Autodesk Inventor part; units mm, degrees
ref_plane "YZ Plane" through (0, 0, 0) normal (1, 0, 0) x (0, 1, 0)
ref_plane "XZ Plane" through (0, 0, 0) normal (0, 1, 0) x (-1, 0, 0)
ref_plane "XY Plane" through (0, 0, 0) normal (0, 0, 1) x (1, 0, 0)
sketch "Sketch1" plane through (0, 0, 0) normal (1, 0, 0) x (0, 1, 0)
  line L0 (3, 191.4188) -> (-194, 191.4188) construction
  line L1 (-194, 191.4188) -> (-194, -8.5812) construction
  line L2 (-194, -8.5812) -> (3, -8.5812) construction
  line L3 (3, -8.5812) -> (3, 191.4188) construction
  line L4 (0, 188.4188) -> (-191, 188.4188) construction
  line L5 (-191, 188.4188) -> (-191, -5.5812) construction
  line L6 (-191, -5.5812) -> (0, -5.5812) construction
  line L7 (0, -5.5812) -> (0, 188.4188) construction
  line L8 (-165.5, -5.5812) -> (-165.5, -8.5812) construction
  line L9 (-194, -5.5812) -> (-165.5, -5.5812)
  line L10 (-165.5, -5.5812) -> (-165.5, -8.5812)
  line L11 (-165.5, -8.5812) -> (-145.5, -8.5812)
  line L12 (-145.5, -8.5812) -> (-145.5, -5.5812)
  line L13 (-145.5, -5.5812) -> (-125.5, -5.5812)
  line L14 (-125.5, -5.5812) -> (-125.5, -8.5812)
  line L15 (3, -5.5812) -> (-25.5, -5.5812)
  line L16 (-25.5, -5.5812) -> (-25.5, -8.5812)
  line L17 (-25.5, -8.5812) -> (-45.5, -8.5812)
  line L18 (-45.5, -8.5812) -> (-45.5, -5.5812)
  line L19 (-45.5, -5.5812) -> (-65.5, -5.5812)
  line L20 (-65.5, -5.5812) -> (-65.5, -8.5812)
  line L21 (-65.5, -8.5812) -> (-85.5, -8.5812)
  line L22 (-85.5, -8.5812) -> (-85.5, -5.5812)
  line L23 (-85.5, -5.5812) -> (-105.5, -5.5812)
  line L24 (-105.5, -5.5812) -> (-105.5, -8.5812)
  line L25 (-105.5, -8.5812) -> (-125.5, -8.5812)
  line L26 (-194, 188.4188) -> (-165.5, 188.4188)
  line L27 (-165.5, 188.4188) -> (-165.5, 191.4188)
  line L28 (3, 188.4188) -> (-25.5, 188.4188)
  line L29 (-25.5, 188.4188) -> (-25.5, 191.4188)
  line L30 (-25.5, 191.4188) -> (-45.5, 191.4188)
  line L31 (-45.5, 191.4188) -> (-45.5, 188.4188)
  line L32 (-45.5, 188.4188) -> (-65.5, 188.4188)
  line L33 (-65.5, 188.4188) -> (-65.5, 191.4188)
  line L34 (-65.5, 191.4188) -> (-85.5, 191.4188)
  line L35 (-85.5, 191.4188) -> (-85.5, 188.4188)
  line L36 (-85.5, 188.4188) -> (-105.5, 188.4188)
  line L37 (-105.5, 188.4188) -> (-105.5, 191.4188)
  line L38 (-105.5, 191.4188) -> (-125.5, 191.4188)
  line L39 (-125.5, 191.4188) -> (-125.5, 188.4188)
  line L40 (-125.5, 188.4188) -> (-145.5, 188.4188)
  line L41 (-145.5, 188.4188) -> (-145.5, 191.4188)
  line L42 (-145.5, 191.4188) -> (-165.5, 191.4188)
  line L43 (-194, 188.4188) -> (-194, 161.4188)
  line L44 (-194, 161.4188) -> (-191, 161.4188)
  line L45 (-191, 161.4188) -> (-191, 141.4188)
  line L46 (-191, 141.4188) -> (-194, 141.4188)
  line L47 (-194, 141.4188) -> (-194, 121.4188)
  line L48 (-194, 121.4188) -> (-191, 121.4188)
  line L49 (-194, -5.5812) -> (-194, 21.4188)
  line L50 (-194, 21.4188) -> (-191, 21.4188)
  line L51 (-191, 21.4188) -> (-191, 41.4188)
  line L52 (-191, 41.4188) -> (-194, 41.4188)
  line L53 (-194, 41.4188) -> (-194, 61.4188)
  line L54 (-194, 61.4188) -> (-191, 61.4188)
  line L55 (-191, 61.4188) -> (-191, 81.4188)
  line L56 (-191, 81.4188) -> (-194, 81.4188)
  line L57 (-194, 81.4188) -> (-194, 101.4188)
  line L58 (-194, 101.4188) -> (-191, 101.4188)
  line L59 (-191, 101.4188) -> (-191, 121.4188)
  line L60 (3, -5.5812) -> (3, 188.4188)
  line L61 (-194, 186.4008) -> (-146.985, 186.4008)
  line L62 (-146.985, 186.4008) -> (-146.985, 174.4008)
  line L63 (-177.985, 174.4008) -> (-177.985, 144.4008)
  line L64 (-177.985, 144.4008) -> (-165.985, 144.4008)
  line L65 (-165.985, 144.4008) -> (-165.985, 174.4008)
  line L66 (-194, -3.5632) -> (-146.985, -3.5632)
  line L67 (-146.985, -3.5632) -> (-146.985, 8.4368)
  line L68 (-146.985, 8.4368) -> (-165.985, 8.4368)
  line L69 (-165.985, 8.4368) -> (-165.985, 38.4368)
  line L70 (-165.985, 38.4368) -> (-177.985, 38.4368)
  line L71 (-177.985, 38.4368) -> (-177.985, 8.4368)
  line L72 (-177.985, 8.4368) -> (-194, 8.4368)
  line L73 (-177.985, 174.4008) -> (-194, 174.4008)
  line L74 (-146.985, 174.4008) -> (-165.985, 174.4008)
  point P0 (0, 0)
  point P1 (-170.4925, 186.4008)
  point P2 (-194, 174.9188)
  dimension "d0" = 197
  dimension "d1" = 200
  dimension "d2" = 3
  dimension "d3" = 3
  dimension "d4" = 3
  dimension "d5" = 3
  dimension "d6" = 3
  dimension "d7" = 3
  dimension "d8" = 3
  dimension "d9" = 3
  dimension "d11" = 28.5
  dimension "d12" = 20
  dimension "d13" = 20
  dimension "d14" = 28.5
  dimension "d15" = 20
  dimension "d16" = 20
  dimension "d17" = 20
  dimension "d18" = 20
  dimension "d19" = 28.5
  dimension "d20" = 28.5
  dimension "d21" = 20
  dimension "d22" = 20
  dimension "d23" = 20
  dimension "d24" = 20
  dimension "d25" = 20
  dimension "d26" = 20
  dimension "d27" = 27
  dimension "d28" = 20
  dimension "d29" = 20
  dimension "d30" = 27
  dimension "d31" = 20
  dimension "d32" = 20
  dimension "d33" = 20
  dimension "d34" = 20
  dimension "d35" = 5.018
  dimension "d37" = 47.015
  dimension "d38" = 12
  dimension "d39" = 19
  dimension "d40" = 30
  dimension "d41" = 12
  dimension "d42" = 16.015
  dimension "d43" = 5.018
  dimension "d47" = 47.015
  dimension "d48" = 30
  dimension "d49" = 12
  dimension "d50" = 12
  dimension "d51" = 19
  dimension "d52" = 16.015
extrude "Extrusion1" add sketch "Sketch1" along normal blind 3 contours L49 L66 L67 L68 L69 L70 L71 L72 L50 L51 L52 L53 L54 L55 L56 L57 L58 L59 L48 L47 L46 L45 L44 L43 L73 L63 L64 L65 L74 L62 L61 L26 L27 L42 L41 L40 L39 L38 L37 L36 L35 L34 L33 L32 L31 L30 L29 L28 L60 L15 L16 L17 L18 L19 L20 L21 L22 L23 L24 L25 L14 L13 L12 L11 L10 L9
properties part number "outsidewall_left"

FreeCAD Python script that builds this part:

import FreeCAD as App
import Part
import Sketcher
from FreeCAD import Vector
Q = App.Units.Quantity

doc = App.newDocument("Part")
body = doc.addObject("PartDesign::Body", "Body")

sketch1 = doc.addObject("Sketcher::SketchObject", "Sketch")
body.addObject(sketch1)
sketch1.AttachmentSupport = (doc.YZ_Plane, [""])
sketch1.MapMode = "FlatFace"
sketch1.addGeometry([
    Part.LineSegment(Vector(-194, -3.6, 0), Vector(-194, -5.6, 0)),
    Part.LineSegment(Vector(-194, -5.6, 0), Vector(-165.5, -5.6, 0)),
    Part.LineSegment(Vector(-165.5, -5.6, 0), Vector(-165.5, -8.6, 0)),
    Part.LineSegment(Vector(-165.5, -8.6, 0), Vector(-145.5, -8.6, 0)),
    Part.LineSegment(Vector(-145.5, -8.6, 0), Vector(-145.5, -5.6, 0)),
    Part.LineSegment(Vector(-145.5, -5.6, 0), Vector(-125.5, -5.6, 0)),
    Part.LineSegment(Vector(-125.5, -5.6, 0), Vector(-125.5, -8.6, 0)),
    Part.LineSegment(Vector(-125.5, -8.6, 0), Vector(-105.5, -8.6, 0)),
    Part.LineSegment(Vector(-105.5, -8.6, 0), Vector(-105.5, -5.6, 0)),
    Part.LineSegment(Vector(-105.5, -5.6, 0), Vector(-85.5, -5.6, 0)),
    Part.LineSegment(Vector(-85.5, -5.6, 0), Vector(-85.5, -8.6, 0)),
    Part.LineSegment(Vector(-85.5, -8.6, 0), Vector(-65.5, -8.6, 0)),
    Part.LineSegment(Vector(-65.5, -8.6, 0), Vector(-65.5, -5.6, 0)),
    Part.LineSegment(Vector(-65.5, -5.6, 0), Vector(-45.5, -5.6, 0)),
    Part.LineSegment(Vector(-45.5, -5.6, 0), Vector(-45.5, -8.6, 0)),
    Part.LineSegment(Vector(-45.5, -8.6, 0), Vector(-25.5, -8.6, 0)),
    Part.LineSegment(Vector(-25.5, -8.6, 0), Vector(-25.5, -5.6, 0)),
    Part.LineSegment(Vector(-25.5, -5.6, 0), Vector(3, -5.6, 0)),
    Part.LineSegment(Vector(3, -5.6, 0), Vector(3, 188.4, 0)),
    Part.LineSegment(Vector(3, 188.4, 0), Vector(-25.5, 188.4, 0)),
    Part.LineSegment(Vector(-25.5, 188.4, 0), Vector(-25.5, 191.4, 0)),
    Part.LineSegment(Vector(-25.5, 191.4, 0), Vector(-45.5, 191.4, 0)),
    Part.LineSegment(Vector(-45.5, 191.4, 0), Vector(-45.5, 188.4, 0)),
    Part.LineSegment(Vector(-45.5, 188.4, 0), Vector(-65.5, 188.4, 0)),
    Part.LineSegment(Vector(-65.5, 188.4, 0), Vector(-65.5, 191.4, 0)),
    Part.LineSegment(Vector(-65.5, 191.4, 0), Vector(-85.5, 191.4, 0)),
    Part.LineSegment(Vector(-85.5, 191.4, 0), Vector(-85.5, 188.4, 0)),
    Part.LineSegment(Vector(-85.5, 188.4, 0), Vector(-105.5, 188.4, 0)),
    Part.LineSegment(Vector(-105.5, 188.4, 0), Vector(-105.5, 191.4, 0)),
    Part.LineSegment(Vector(-105.5, 191.4, 0), Vector(-125.5, 191.4, 0)),
    Part.LineSegment(Vector(-125.5, 191.4, 0), Vector(-125.5, 188.4, 0)),
    Part.LineSegment(Vector(-125.5, 188.4, 0), Vector(-145.5, 188.4, 0)),
    Part.LineSegment(Vector(-145.5, 188.4, 0), Vector(-145.5, 191.4, 0)),
    Part.LineSegment(Vector(-145.5, 191.4, 0), Vector(-165.5, 191.4, 0)),
    Part.LineSegment(Vector(-165.5, 191.4, 0), Vector(-165.5, 188.4, 0)),
    Part.LineSegment(Vector(-165.5, 188.4, 0), Vector(-194, 188.4, 0)),
    Part.LineSegment(Vector(-194, 188.4, 0), Vector(-194, 186.4, 0)),
    Part.LineSegment(Vector(-194, 186.4, 0), Vector(-147, 186.4, 0)),
    Part.LineSegment(Vector(-147, 186.4, 0), Vector(-147, 174.4, 0)),
    Part.LineSegment(Vector(-147, 174.4, 0), Vector(-166, 174.4, 0)),
    Part.LineSegment(Vector(-166, 174.4, 0), Vector(-166, 144.4, 0)),
    Part.LineSegment(Vector(-166, 144.4, 0), Vector(-178, 144.4, 0)),
    Part.LineSegment(Vector(-178, 144.4, 0), Vector(-178, 174.4, 0)),
    Part.LineSegment(Vector(-178, 174.4, 0), Vector(-194, 174.4, 0)),
    Part.LineSegment(Vector(-194, 174.4, 0), Vector(-194, 161.4, 0)),
    Part.LineSegment(Vector(-194, 161.4, 0), Vector(-191, 161.4, 0)),
    Part.LineSegment(Vector(-191, 161.4, 0), Vector(-191, 141.4, 0)),
    Part.LineSegment(Vector(-191, 141.4, 0), Vector(-194, 141.4, 0)),
    Part.LineSegment(Vector(-194, 141.4, 0), Vector(-194, 121.4, 0)),
    Part.LineSegment(Vector(-194, 121.4, 0), Vector(-191, 121.4, 0)),
    Part.LineSegment(Vector(-191, 121.4, 0), Vector(-191, 101.4, 0)),
    Part.LineSegment(Vector(-191, 101.4, 0), Vector(-194, 101.4, 0)),
    Part.LineSegment(Vector(-194, 101.4, 0), Vector(-194, 81.4, 0)),
    Part.LineSegment(Vector(-194, 81.4, 0), Vector(-191, 81.4, 0)),
    Part.LineSegment(Vector(-191, 81.4, 0), Vector(-191, 61.4, 0)),
    Part.LineSegment(Vector(-191, 61.4, 0), Vector(-194, 61.4, 0)),
    Part.LineSegment(Vector(-194, 61.4, 0), Vector(-194, 41.4, 0)),
    Part.LineSegment(Vector(-194, 41.4, 0), Vector(-191, 41.4, 0)),
    Part.LineSegment(Vector(-191, 41.4, 0), Vector(-191, 21.4, 0)),
    Part.LineSegment(Vector(-191, 21.4, 0), Vector(-194, 21.4, 0)),
    Part.LineSegment(Vector(-194, 21.4, 0), Vector(-194, 8.4, 0)),
    Part.LineSegment(Vector(-194, 8.4, 0), Vector(-178, 8.4, 0)),
    Part.LineSegment(Vector(-178, 8.4, 0), Vector(-178, 38.4, 0)),
    Part.LineSegment(Vector(-178, 38.4, 0), Vector(-166, 38.4, 0)),
    Part.LineSegment(Vector(-166, 38.4, 0), Vector(-166, 8.4, 0)),
    Part.LineSegment(Vector(-166, 8.4, 0), Vector(-147, 8.4, 0)),
    Part.LineSegment(Vector(-147, 8.4, 0), Vector(-147, -3.6, 0)),
    Part.LineSegment(Vector(-147, -3.6, 0), Vector(-194, -3.6, 0)),
], False)
sketch1.addConstraint([
    Sketcher.Constraint("Coincident", 0, 2, 1, 1),
    Sketcher.Constraint("Coincident", 1, 2, 2, 1),
    Sketcher.Constraint("Coincident", 2, 2, 3, 1),
    Sketcher.Constraint("Coincident", 3, 2, 4, 1),
    Sketcher.Constraint("Coincident", 4, 2, 5, 1),
    Sketcher.Constraint("Coincident", 5, 2, 6, 1),
    Sketcher.Constraint("Coincident", 6, 2, 7, 1),
    Sketcher.Constraint("Coincident", 7, 2, 8, 1),
    Sketcher.Constraint("Coincident", 8, 2, 9, 1),
    Sketcher.Constraint("Coincident", 9, 2, 10, 1),
    Sketcher.Constraint("Coincident", 10, 2, 11, 1),
    Sketcher.Constraint("Coincident", 11, 2, 12, 1),
    Sketcher.Constraint("Coincident", 12, 2, 13, 1),
    Sketcher.Constraint("Coincident", 13, 2, 14, 1),
    Sketcher.Constraint("Coincident", 14, 2, 15, 1),
    Sketcher.Constraint("Coincident", 15, 2, 16, 1),
    Sketcher.Constraint("Coincident", 16, 2, 17, 1),
    Sketcher.Constraint("Coincident", 17, 2, 18, 1),
    Sketcher.Constraint("Coincident", 18, 2, 19, 1),
    Sketcher.Constraint("Coincident", 19, 2, 20, 1),
    Sketcher.Constraint("Coincident", 20, 2, 21, 1),
    Sketcher.Constraint("Coincident", 21, 2, 22, 1),
    Sketcher.Constraint("Coincident", 22, 2, 23, 1),
    Sketcher.Constraint("Coincident", 23, 2, 24, 1),
    Sketcher.Constraint("Coincident", 24, 2, 25, 1),
    Sketcher.Constraint("Coincident", 25, 2, 26, 1),
    Sketcher.Constraint("Coincident", 26, 2, 27, 1),
    Sketcher.Constraint("Coincident", 27, 2, 28, 1),
    Sketcher.Constraint("Coincident", 28, 2, 29, 1),
    Sketcher.Constraint("Coincident", 29, 2, 30, 1),
    Sketcher.Constraint("Coincident", 30, 2, 31, 1),
    Sketcher.Constraint("Coincident", 31, 2, 32, 1),
    Sketcher.Constraint("Coincident", 32, 2, 33, 1),
    Sketcher.Constraint("Coincident", 33, 2, 34, 1),
    Sketcher.Constraint("Coincident", 34, 2, 35, 1),
    Sketcher.Constraint("Coincident", 35, 2, 36, 1),
    Sketcher.Constraint("Coincident", 36, 2, 37, 1),
    Sketcher.Constraint("Coincident", 37, 2, 38, 1),
    Sketcher.Constraint("Coincident", 38, 2, 39, 1),
    Sketcher.Constraint("Coincident", 39, 2, 40, 1),
    Sketcher.Constraint("Coincident", 40, 2, 41, 1),
    Sketcher.Constraint("Coincident", 41, 2, 42, 1),
    Sketcher.Constraint("Coincident", 42, 2, 43, 1),
    Sketcher.Constraint("Coincident", 43, 2, 44, 1),
    Sketcher.Constraint("Coincident", 44, 2, 45, 1),
    Sketcher.Constraint("Coincident", 45, 2, 46, 1),
    Sketcher.Constraint("Coincident", 46, 2, 47, 1),
    Sketcher.Constraint("Coincident", 47, 2, 48, 1),
    Sketcher.Constraint("Coincident", 48, 2, 49, 1),
    Sketcher.Constraint("Coincident", 49, 2, 50, 1),
    Sketcher.Constraint("Coincident", 50, 2, 51, 1),
    Sketcher.Constraint("Coincident", 51, 2, 52, 1),
    Sketcher.Constraint("Coincident", 52, 2, 53, 1),
    Sketcher.Constraint("Coincident", 53, 2, 54, 1),
    Sketcher.Constraint("Coincident", 54, 2, 55, 1),
    Sketcher.Constraint("Coincident", 55, 2, 56, 1),
    Sketcher.Constraint("Coincident", 56, 2, 57, 1),
    Sketcher.Constraint("Coincident", 57, 2, 58, 1),
    Sketcher.Constraint("Coincident", 58, 2, 59, 1),
    Sketcher.Constraint("Coincident", 59, 2, 60, 1),
    Sketcher.Constraint("Coincident", 60, 2, 61, 1),
    Sketcher.Constraint("Coincident", 61, 2, 62, 1),
    Sketcher.Constraint("Coincident", 62, 2, 63, 1),
    Sketcher.Constraint("Coincident", 63, 2, 64, 1),
    Sketcher.Constraint("Coincident", 64, 2, 65, 1),
    Sketcher.Constraint("Coincident", 65, 2, 66, 1),
    Sketcher.Constraint("Coincident", 66, 2, 67, 1),
    Sketcher.Constraint("Coincident", 67, 2, 0, 1),
    Sketcher.Constraint("Vertical", 0),
    Sketcher.Constraint("Horizontal", 1),
    Sketcher.Constraint("Vertical", 2),
    Sketcher.Constraint("Horizontal", 3),
    Sketcher.Constraint("Vertical", 4),
    Sketcher.Constraint("Horizontal", 5),
    Sketcher.Constraint("Vertical", 6),
    Sketcher.Constraint("Horizontal", 7),
    Sketcher.Constraint("Vertical", 8),
    Sketcher.Constraint("Horizontal", 9),
    Sketcher.Constraint("Vertical", 10),
    Sketcher.Constraint("Horizontal", 11),
    Sketcher.Constraint("Vertical", 12),
    Sketcher.Constraint("Horizontal", 13),
    Sketcher.Constraint("Vertical", 14),
    Sketcher.Constraint("Horizontal", 15),
    Sketcher.Constraint("Vertical", 16),
    Sketcher.Constraint("Horizontal", 17),
    Sketcher.Constraint("Vertical", 18),
    Sketcher.Constraint("Horizontal", 19),
    Sketcher.Constraint("Vertical", 20),
    Sketcher.Constraint("Horizontal", 21),
    Sketcher.Constraint("Vertical", 22),
    Sketcher.Constraint("Horizontal", 23),
    Sketcher.Constraint("Vertical", 24),
    Sketcher.Constraint("Horizontal", 25),
    Sketcher.Constraint("Vertical", 26),
    Sketcher.Constraint("Horizontal", 27),
    Sketcher.Constraint("Vertical", 28),
    Sketcher.Constraint("Horizontal", 29),
    Sketcher.Constraint("Vertical", 30),
    Sketcher.Constraint("Horizontal", 31),
    Sketcher.Constraint("Vertical", 32),
    Sketcher.Constraint("Horizontal", 33),
    Sketcher.Constraint("Vertical", 34),
    Sketcher.Constraint("Horizontal", 35),
    Sketcher.Constraint("Vertical", 36),
    Sketcher.Constraint("Horizontal", 37),
    Sketcher.Constraint("Vertical", 38),
    Sketcher.Constraint("Horizontal", 39),
    Sketcher.Constraint("Vertical", 40),
    Sketcher.Constraint("Horizontal", 41),
    Sketcher.Constraint("Vertical", 42),
    Sketcher.Constraint("Horizontal", 43),
    Sketcher.Constraint("Vertical", 44),
    Sketcher.Constraint("Horizontal", 45),
    Sketcher.Constraint("Vertical", 46),
    Sketcher.Constraint("Horizontal", 47),
    Sketcher.Constraint("Vertical", 48),
    Sketcher.Constraint("Horizontal", 49),
    Sketcher.Constraint("Vertical", 50),
    Sketcher.Constraint("Horizontal", 51),
    Sketcher.Constraint("Vertical", 52),
    Sketcher.Constraint("Horizontal", 53),
    Sketcher.Constraint("Vertical", 54),
    Sketcher.Constraint("Horizontal", 55),
    Sketcher.Constraint("Vertical", 56),
    Sketcher.Constraint("Horizontal", 57),
    Sketcher.Constraint("Vertical", 58),
    Sketcher.Constraint("Horizontal", 59),
    Sketcher.Constraint("Vertical", 60),
    Sketcher.Constraint("Horizontal", 61),
    Sketcher.Constraint("Vertical", 62),
    Sketcher.Constraint("Horizontal", 63),
    Sketcher.Constraint("Vertical", 64),
    Sketcher.Constraint("Horizontal", 65),
    Sketcher.Constraint("Vertical", 66),
    Sketcher.Constraint("Horizontal", 67),
    Sketcher.Constraint("Horizontal", 1, 2, 4, 2),
    Sketcher.Constraint("Horizontal", 3, 2, 6, 2),
    Sketcher.Constraint("Horizontal", 5, 2, 8, 2),
    Sketcher.Constraint("Horizontal", 7, 2, 10, 2),
    Sketcher.Constraint("Horizontal", 9, 2, 12, 2),
    Sketcher.Constraint("Horizontal", 11, 2, 14, 2),
    Sketcher.Constraint("Horizontal", 13, 2, 16, 2),
    Sketcher.Constraint("Horizontal", 19, 2, 22, 2),
    Sketcher.Constraint("Horizontal", 21, 2, 24, 2),
    Sketcher.Constraint("Horizontal", 23, 2, 26, 2),
    Sketcher.Constraint("Horizontal", 25, 2, 28, 2),
    Sketcher.Constraint("Horizontal", 27, 2, 30, 2),
    Sketcher.Constraint("Horizontal", 29, 2, 32, 2),
    Sketcher.Constraint("Horizontal", 31, 2, 34, 2),
    Sketcher.Constraint("Horizontal", 39, 2, 42, 2),
    Sketcher.Constraint("Horizontal", 61, 2, 64, 2),
    Sketcher.Constraint("Vertical", 16, 2, 19, 2),
    Sketcher.Constraint("Vertical", 14, 2, 21, 2),
    Sketcher.Constraint("Vertical", 12, 2, 23, 2),
    Sketcher.Constraint("Vertical", 10, 2, 25, 2),
    Sketcher.Constraint("Vertical", 8, 2, 27, 2),
    Sketcher.Constraint("Vertical", 6, 2, 29, 2),
    Sketcher.Constraint("Vertical", 4, 2, 31, 2),
    Sketcher.Constraint("Vertical", 2, 2, 33, 2),
    Sketcher.Constraint("Vertical", 0, 2, 35, 2),
    Sketcher.Constraint("Vertical", 36, 2, 43, 2),
    Sketcher.Constraint("Vertical", 44, 2, 47, 2),
    Sketcher.Constraint("Vertical", 46, 2, 49, 2),
    Sketcher.Constraint("Vertical", 48, 2, 51, 2),
    Sketcher.Constraint("Vertical", 50, 2, 53, 2),
    Sketcher.Constraint("Vertical", 52, 2, 55, 2),
    Sketcher.Constraint("Vertical", 54, 2, 57, 2),
    Sketcher.Constraint("Vertical", 56, 2, 59, 2),
    Sketcher.Constraint("Vertical", 42, 2, 61, 2),
    Sketcher.Constraint("Vertical", 40, 2, 63, 2),
    Sketcher.Constraint("Vertical", 38, 2, 65, 2),
    Sketcher.Constraint("Equal", 3, 5),
    Sketcher.Constraint("Equal", 5, 7),
    Sketcher.Constraint("Equal", 7, 9),
    Sketcher.Constraint("Equal", 9, 11),
    Sketcher.Constraint("Equal", 11, 13),
    Sketcher.Constraint("Equal", 13, 15),
    Sketcher.Constraint("Equal", 1, 17),
    Sketcher.Constraint("Equal", 59, 2),
    Sketcher.Constraint("Equal", 16, 20),
    Sketcher.Constraint("Equal", 0, 36),
    Sketcher.Constraint("Equal", 63, 38),
    Sketcher.Constraint("Equal", 33, 46),
    Sketcher.Constraint("Equal", 46, 48),
    Sketcher.Constraint("Equal", 48, 50),
    Sketcher.Constraint("Equal", 50, 52),
    Sketcher.Constraint("Equal", 52, 54),
    Sketcher.Constraint("Equal", 54, 56),
    Sketcher.Constraint("Equal", 56, 58),
    Sketcher.Constraint("Equal", 44, 60),
    Sketcher.Constraint("Equal", 42, 62),
    Sketcher.Constraint("Equal", 38, 66),
    Sketcher.Constraint("DistanceX", 3, 1, 3, 2, Q("20 mm")),
    Sketcher.Constraint("DistanceX", 39, 2, 39, 1, Q("19 mm")),
    Sketcher.Constraint("DistanceX", 41, 2, 41, 1, Q("12 mm")),
    Sketcher.Constraint("DistanceX", 45, 1, 45, 2, Q("3 mm")),
    Sketcher.Constraint("DistanceY", 40, 2, 40, 1, Q("30 mm")),
    Sketcher.Constraint("DistanceX", 1, 1, 1, 2, Q("28.5 mm")),
    Sketcher.Constraint("DistanceX", -1, 1, 17, 2, Q("3 mm")),
    Sketcher.Constraint("DistanceX", 37, 1, 37, 2, Q("47.015 mm")),
    Sketcher.Constraint("DistanceY", 18, 1, 18, 2, Q("194 mm")),
    Sketcher.Constraint("DistanceY", 0, 2, 0, 1, Q("2.018 mm")),
    Sketcher.Constraint("DistanceY", 0, 2, -1, 1, Q("5.5812 mm")),
])
pad1 = doc.addObject("PartDesign::Pad", "Pad")
body.addObject(pad1)
pad1.Profile = sketch1
pad1.Length = 3

doc.recompute()
